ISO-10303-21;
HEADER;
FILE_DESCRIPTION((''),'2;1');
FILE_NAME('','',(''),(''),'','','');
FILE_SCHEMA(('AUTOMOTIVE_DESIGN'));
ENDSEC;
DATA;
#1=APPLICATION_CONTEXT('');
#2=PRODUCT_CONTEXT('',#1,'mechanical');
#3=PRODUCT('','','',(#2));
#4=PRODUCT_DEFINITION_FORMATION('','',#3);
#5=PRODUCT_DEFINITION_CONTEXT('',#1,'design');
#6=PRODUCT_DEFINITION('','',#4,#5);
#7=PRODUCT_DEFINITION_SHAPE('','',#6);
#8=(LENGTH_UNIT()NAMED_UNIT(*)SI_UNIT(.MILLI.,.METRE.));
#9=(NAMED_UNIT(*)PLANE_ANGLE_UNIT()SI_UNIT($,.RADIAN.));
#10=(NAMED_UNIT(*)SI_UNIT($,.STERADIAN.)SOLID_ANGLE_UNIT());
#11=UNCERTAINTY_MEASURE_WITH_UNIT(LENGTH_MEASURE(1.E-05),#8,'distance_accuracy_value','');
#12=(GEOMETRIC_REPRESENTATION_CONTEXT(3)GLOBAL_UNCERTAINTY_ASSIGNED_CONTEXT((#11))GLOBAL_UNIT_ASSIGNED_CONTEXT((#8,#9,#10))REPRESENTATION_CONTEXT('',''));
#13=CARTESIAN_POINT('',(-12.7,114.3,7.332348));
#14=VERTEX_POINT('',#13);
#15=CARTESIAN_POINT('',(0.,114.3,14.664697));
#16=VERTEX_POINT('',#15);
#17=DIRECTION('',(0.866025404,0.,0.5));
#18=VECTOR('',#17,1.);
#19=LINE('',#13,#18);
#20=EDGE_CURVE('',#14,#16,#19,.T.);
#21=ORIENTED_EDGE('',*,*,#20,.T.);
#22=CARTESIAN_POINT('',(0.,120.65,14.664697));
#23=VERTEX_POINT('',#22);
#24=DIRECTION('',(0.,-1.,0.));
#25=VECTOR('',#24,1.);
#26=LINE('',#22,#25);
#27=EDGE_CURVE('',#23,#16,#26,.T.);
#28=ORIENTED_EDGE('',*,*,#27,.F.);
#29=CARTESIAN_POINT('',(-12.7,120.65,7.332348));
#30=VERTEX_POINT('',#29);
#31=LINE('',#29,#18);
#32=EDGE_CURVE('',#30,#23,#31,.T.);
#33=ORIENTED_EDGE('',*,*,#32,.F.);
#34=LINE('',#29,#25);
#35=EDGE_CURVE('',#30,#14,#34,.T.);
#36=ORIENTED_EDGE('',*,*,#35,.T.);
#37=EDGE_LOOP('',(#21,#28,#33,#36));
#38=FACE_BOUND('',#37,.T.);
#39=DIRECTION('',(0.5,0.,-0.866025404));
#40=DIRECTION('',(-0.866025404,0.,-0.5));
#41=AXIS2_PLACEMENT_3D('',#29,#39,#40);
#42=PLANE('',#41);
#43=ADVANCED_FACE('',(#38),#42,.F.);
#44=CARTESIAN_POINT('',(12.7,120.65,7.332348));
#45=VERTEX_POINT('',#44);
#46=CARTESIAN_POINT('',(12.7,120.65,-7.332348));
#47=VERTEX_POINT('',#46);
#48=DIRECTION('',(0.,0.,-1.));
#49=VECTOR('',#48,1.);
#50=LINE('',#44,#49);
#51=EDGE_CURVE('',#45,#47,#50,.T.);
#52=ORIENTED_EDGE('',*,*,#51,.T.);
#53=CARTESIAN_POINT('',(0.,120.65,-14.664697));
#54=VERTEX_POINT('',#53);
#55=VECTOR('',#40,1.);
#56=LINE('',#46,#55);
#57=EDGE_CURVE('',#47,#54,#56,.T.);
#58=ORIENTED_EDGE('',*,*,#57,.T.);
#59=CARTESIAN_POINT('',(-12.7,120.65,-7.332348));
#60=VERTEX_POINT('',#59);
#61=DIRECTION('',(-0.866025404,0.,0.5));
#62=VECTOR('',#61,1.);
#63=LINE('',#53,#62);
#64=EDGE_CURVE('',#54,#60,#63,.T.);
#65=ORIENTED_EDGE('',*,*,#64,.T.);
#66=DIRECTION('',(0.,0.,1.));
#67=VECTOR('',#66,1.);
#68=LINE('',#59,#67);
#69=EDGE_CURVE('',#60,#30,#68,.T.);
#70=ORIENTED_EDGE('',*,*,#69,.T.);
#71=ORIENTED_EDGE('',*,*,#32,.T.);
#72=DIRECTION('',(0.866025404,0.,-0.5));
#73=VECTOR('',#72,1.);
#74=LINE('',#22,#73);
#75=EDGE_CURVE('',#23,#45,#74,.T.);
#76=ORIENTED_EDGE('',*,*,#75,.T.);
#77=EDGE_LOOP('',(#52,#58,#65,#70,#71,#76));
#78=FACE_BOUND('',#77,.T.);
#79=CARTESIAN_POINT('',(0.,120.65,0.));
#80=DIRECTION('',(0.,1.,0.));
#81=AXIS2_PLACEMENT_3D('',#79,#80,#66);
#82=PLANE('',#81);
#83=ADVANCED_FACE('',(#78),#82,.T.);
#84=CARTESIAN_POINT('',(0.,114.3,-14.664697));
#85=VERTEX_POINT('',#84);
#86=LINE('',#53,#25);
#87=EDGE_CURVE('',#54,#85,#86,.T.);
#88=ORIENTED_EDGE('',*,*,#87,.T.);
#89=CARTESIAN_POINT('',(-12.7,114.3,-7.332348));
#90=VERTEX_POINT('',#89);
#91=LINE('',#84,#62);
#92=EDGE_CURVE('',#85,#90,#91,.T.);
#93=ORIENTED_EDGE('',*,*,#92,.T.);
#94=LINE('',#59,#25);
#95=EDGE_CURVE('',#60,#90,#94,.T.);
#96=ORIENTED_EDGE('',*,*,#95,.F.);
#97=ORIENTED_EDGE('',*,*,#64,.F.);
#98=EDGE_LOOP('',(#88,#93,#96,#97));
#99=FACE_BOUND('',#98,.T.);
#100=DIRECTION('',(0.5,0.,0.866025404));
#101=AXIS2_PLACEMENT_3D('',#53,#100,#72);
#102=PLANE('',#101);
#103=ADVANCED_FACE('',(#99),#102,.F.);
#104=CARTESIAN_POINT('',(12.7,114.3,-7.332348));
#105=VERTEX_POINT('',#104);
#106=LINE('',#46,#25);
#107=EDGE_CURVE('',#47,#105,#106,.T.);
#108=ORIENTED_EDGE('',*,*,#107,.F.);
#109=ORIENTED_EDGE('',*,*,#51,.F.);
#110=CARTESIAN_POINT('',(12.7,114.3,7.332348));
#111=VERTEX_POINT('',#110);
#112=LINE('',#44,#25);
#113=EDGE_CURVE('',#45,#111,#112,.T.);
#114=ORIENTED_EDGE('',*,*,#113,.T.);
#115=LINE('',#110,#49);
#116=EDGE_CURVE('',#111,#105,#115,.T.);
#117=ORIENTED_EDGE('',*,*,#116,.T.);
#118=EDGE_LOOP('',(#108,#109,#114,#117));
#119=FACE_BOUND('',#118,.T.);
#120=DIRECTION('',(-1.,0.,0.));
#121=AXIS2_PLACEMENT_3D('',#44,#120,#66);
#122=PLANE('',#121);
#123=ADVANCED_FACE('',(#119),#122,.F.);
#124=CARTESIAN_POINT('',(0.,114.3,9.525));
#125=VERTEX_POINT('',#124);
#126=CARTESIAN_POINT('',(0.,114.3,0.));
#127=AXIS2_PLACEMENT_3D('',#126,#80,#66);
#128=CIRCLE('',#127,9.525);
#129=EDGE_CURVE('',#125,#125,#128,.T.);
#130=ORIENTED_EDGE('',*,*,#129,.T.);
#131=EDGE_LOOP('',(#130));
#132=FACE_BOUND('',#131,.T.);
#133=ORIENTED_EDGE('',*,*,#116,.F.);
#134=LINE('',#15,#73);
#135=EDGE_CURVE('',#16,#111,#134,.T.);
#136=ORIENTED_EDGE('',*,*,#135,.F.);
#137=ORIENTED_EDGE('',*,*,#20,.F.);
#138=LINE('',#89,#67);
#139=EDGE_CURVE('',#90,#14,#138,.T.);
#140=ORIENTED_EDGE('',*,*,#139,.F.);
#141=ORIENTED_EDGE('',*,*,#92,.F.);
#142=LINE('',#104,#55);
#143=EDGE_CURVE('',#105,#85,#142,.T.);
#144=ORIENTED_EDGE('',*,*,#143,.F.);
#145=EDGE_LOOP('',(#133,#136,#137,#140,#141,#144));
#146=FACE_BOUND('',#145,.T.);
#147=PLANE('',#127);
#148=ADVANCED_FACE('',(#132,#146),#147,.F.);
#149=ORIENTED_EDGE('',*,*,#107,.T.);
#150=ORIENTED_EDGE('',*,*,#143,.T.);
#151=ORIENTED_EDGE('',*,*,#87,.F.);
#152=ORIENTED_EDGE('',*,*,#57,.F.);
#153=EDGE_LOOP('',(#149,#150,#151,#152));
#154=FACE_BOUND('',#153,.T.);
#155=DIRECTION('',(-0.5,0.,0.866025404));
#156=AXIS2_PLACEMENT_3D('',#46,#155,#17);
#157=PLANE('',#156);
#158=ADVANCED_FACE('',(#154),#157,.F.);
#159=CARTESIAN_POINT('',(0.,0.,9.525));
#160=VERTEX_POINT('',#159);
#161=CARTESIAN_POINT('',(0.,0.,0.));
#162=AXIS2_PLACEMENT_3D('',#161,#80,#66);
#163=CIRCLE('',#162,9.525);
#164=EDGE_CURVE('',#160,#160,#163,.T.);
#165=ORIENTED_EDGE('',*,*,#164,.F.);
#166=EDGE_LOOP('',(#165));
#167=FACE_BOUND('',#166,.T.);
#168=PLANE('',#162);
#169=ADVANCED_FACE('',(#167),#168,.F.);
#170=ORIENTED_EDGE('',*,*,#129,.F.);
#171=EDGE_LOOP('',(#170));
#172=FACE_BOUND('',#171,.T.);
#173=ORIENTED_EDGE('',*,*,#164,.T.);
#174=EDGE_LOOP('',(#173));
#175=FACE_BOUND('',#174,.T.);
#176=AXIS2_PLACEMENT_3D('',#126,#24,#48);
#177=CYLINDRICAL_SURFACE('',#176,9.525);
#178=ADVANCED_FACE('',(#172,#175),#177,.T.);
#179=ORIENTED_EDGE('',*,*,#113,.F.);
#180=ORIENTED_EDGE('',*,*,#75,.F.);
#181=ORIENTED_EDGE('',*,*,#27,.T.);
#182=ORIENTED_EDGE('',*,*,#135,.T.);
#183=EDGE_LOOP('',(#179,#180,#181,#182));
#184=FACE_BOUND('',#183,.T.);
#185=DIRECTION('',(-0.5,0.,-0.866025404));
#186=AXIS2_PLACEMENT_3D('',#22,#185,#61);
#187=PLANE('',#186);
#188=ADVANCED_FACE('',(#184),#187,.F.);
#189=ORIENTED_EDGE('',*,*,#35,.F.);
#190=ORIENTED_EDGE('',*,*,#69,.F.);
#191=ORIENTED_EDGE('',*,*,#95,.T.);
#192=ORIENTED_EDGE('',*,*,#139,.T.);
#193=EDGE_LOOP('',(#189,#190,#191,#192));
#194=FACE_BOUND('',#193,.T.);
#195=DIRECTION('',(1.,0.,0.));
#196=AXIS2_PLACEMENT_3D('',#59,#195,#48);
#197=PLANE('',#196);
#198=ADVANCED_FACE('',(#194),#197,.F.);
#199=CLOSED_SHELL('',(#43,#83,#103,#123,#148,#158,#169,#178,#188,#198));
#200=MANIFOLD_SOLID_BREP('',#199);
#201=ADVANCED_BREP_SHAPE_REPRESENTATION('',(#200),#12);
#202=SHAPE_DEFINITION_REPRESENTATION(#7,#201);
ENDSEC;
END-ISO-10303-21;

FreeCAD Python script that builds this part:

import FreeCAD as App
import Part
import Sketcher
Q = App.Units.Quantity

doc = App.newDocument("Part")
body = doc.addObject("PartDesign::Body", "Body")

# Sketch on XZ plane
sketch1 = body.newObject("Sketcher::SketchObject", "Sketch")
sketch1.AttachmentSupport = (doc.getObject("XZ_Plane"), [""])
sketch1.MapMode = "FlatFace"
sketch1.addGeometry(Part.Circle(App.Vector(0, 0, 0), App.Vector(0, 0, 1), 10), False)
sketch1.addConstraint(Sketcher.Constraint("Coincident", 0, 3, -1, 1))
sketch1.addConstraint(Sketcher.Constraint("Diameter", 0, Q("0.75 in")))
pad1 = body.newObject("PartDesign::Pad", "Pad")
pad1.Profile = sketch1
pad1.Length = Q("4.5 in")
pad1.Reversed = True

# Sketch on XZ plane
sketch2 = body.newObject("Sketcher::SketchObject", "Sketch001")
sketch2.AttachmentSupport = (doc.getObject("XZ_Plane"), [""])
sketch2.MapMode = "FlatFace"
sketch2.AttachmentOffset = App.Placement(App.Vector(0, 0, -4.5 * 25.4), App.Rotation())
sketch2.addGeometry(Part.LineSegment(App.Vector(13, -7, 0), App.Vector(0, -15, 0)), False)
sketch2.addGeometry(Part.LineSegment(App.Vector(0, -15, 0), App.Vector(-13, -7, 0)), False)
sketch2.addGeometry(Part.LineSegment(App.Vector(-13, -7, 0), App.Vector(-13, 7, 0)), False)
sketch2.addGeometry(Part.LineSegment(App.Vector(-13, 7, 0), App.Vector(0, 15, 0)), False)
sketch2.addGeometry(Part.LineSegment(App.Vector(0, 15, 0), App.Vector(13, 7, 0)), False)
sketch2.addGeometry(Part.LineSegment(App.Vector(13, 7, 0), App.Vector(13, -7, 0)), False)
sketch2.addConstraint(Sketcher.Constraint("Coincident", 0, 2, 1, 1))
sketch2.addConstraint(Sketcher.Constraint("Coincident", 1, 2, 2, 1))
sketch2.addConstraint(Sketcher.Constraint("Coincident", 2, 2, 3, 1))
sketch2.addConstraint(Sketcher.Constraint("Coincident", 3, 2, 4, 1))
sketch2.addConstraint(Sketcher.Constraint("Coincident", 4, 2, 5, 1))
sketch2.addConstraint(Sketcher.Constraint("Coincident", 5, 2, 0, 1))
sketch2.addConstraint(Sketcher.Constraint("Vertical", 2))
sketch2.addConstraint(Sketcher.Constraint("Vertical", 5))
sketch2.addConstraint(Sketcher.Constraint("Symmetric", 0, 2, 3, 2, -1, 1))
sketch2.addConstraint(Sketcher.Constraint("Symmetric", 1, 2, 4, 2, -1, 1))
sketch2.addConstraint(Sketcher.Constraint("PointOnObject", 0, 2, -2))
sketch2.addConstraint(Sketcher.Constraint("Parallel", 0, 3))
sketch2.addConstraint(Sketcher.Constraint("Horizontal", 2, 2, 4, 2))
sketch2.addConstraint(Sketcher.Constraint("Angle", 0, Q("-150 deg")))
sketch2.addConstraint(Sketcher.Constraint("DistanceX", 2, 2, 4, 2, Q("1 in")))
sketch2.addConstraint(Sketcher.Constraint("DistanceY", 2, 1, 2, 2, 14.664697))
pad2 = body.newObject("PartDesign::Pad", "Pad001")
pad2.Profile = sketch2
pad2.Length = Q("0.25 in")
pad2.Reversed = True

doc.recompute()
